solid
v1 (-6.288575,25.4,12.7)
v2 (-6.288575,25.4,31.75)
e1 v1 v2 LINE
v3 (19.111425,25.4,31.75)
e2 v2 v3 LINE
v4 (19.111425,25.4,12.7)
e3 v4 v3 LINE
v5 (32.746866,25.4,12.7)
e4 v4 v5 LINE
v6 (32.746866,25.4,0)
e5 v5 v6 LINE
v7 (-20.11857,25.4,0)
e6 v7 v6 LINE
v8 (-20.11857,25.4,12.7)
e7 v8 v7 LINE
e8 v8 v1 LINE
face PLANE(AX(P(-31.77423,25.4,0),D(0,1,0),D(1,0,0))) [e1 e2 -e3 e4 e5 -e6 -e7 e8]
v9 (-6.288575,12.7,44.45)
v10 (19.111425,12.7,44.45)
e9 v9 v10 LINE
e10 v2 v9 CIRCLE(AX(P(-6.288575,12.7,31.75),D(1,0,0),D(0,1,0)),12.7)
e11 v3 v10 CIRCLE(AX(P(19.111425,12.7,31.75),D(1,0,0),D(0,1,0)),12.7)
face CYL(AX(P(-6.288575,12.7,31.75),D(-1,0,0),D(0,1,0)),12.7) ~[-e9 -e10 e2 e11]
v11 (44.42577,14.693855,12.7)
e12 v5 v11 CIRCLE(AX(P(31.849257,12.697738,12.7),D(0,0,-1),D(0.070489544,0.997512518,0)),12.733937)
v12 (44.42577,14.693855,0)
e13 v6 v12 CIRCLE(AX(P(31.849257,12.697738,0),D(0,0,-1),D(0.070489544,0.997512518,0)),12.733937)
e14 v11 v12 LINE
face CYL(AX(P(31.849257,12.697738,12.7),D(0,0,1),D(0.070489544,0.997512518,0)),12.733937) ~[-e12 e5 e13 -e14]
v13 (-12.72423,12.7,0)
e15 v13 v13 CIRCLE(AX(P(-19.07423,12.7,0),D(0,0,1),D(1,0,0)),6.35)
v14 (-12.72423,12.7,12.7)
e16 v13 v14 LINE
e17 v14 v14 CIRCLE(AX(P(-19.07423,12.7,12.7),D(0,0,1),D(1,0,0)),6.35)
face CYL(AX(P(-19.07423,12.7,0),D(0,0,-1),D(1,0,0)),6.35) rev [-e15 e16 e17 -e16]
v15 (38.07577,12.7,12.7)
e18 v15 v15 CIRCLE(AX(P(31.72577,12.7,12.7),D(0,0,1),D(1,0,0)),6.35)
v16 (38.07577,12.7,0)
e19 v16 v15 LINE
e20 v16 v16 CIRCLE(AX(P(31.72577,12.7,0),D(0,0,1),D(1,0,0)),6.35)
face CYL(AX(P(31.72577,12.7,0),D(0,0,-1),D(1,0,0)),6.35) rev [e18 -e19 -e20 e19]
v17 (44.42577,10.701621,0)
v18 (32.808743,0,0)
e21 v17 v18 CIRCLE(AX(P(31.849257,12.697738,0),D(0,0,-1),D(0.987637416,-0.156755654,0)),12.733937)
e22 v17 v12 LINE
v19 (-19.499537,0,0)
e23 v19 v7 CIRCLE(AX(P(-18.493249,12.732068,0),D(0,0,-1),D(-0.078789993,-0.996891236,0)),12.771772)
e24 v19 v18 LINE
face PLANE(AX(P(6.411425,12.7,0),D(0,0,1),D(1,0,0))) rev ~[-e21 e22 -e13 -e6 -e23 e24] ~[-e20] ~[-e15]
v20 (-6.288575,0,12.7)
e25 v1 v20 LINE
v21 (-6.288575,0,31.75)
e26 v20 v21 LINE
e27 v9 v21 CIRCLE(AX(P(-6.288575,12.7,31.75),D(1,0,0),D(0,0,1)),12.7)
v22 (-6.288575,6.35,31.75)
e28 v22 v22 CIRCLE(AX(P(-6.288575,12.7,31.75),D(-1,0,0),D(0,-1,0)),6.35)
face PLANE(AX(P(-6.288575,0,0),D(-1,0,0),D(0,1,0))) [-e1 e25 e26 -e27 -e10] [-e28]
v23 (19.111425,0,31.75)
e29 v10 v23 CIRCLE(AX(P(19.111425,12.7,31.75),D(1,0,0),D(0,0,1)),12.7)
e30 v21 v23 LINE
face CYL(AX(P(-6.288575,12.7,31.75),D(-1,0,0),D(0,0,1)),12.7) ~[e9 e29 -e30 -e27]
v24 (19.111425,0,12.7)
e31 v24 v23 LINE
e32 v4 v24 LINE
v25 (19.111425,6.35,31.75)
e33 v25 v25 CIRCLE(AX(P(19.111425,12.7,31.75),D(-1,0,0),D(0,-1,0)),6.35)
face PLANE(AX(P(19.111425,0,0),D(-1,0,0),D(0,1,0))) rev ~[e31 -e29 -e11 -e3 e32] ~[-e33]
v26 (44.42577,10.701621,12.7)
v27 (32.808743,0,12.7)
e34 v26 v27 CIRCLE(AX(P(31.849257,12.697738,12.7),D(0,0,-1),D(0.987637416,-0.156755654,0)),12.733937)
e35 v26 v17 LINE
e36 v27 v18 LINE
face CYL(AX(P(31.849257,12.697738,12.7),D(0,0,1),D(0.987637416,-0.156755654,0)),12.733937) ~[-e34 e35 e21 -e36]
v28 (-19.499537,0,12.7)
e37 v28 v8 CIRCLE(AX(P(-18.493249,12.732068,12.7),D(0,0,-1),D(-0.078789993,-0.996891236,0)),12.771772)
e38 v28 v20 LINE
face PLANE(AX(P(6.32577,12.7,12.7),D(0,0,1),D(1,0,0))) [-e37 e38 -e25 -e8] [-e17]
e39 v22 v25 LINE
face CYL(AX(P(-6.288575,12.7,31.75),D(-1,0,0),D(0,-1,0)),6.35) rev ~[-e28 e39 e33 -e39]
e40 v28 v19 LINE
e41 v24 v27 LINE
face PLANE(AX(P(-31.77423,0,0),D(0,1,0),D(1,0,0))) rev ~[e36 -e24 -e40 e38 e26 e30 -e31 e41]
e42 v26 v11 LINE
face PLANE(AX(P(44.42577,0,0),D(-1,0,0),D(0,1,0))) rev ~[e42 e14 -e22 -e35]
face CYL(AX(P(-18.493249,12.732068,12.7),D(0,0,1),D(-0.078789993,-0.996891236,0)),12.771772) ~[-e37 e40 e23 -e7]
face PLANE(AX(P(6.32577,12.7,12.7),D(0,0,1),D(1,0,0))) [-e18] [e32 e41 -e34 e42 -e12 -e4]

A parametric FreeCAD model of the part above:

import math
import FreeCAD as App
import Part
import Sketcher

V = App.Vector
Q = App.Units.Quantity


def add_polygon(sketch, points):
    """Adds a closed chain of lines whose ends are joined by coincident constraints."""
    first, n = sketch.GeometryCount, len(points)
    for a, b in zip(points, points[1:] + points[:1]):
        sketch.addGeometry(Part.LineSegment(App.Vector(*a, 0), App.Vector(*b, 0)), False)
    for i in range(n):
        sketch.addConstraint(Sketcher.Constraint("Coincident", first + i, 2, first + (i + 1) % n, 1))

doc = App.newDocument("Part")
body = doc.addObject("PartDesign::Body", "Body")

# Sketch on XY plane
sketch1 = body.newObject("Sketcher::SketchObject", "Sketch")
sketch1.AttachmentSupport = (doc.getObject("XY_Plane"), [""])
sketch1.MapMode = "FlatFace"
add_polygon(sketch1, [(-32, 25), (-32, 0), (44, 0), (44, 25)])  # lines 0-3
sketch1.addGeometry(Part.Circle(V(-19, 13, 0), V(0, 0, 1), 6), False)  # 4
sketch1.addGeometry(Part.Circle(V(32, 13, 0), V(0, 0, 1), 6), False)  # 5
sketch1.addConstraint(Sketcher.Constraint("Vertical", 0))
sketch1.addConstraint(Sketcher.Constraint("Horizontal", 1))
sketch1.addConstraint(Sketcher.Constraint("Vertical", 2))
sketch1.addConstraint(Sketcher.Constraint("Horizontal", 3))
sketch1.addConstraint(Sketcher.Constraint("Equal", 4, 5))
sketch1.addConstraint(Sketcher.Constraint("PointOnObject", 0, 2, -1))
sketch1.addConstraint(Sketcher.Constraint("Horizontal", 4, 3, 5, 3))
sketch1.addConstraint(Sketcher.Constraint("Diameter", 4, Q("0.5 in")))
sketch1.addConstraint(Sketcher.Constraint("DistanceX", 1, 1, 1, 2, Q("3 in")))
sketch1.addConstraint(Sketcher.Constraint("DistanceY", 0, 2, 0, 1, Q("1 in")))
sketch1.addConstraint(Sketcher.Constraint("DistanceX", 4, 3, 5, 3, Q("2 in")))
sketch1.addConstraint(Sketcher.Constraint("DistanceY", -1, 1, 4, 3, Q("0.5 in")))
sketch1.addConstraint(Sketcher.Constraint("DistanceX", 0, 2, 4, 3, Q("0.5 in")))
sketch1.addConstraint(Sketcher.Constraint("DistanceX", 4, 3, -1, 1, 19.07423))
pad1 = body.newObject("PartDesign::Pad", "Pad")
pad1.Profile = sketch1
pad1.Length = Q("0.5 in")

# Sketch on XY plane
sketch2 = body.newObject("Sketcher::SketchObject", "Sketch001")
sketch2.AttachmentSupport = (doc.getObject("XY_Plane"), [""])
sketch2.MapMode = "FlatFace"
sketch2.AttachmentOffset = App.Placement(V(0, 0, 0.5 * 25.4), App.Rotation())
sketch2.addGeometry(Part.ArcOfCircle(Part.Circle(V(-18, 13, 0), V(0, 0, 1), 13), math.radians(97), math.radians(265)), False)
sketch2.addGeometry(Part.LineSegment(V(-20, 25, 0), V(-32, 25, 0)), False)
sketch2.addGeometry(Part.LineSegment(V(-32, 25, 0), V(-32, 0, 0)), False)
sketch2.addGeometry(Part.LineSegment(V(-32, 0, 0), V(-19, 0, 0)), False)
sketch2.addGeometry(Part.LineSegment(V(44, 25, 0), V(33, 25, 0)), False)
sketch2.addGeometry(Part.ArcOfCircle(Part.Circle(V(32, 13, 0), V(0, 0, 1), 13), math.radians(9), math.radians(86)), False)
sketch2.addGeometry(Part.LineSegment(V(44, 15, 0), V(44, 25, 0)), False)
sketch2.addGeometry(Part.ArcOfCircle(Part.Circle(V(32, 13, 0), V(0, 0, 1), 13), math.radians(-86), math.radians(-9)), False)
sketch2.addGeometry(Part.LineSegment(V(33, 0, 0), V(44, 0, 0)), False)
sketch2.addGeometry(Part.LineSegment(V(44, 0, 0), V(44, 11, 0)), False)
sketch2.addConstraint(Sketcher.Constraint("Coincident", 0, 1, 1, 1))
sketch2.addConstraint(Sketcher.Constraint("Coincident", 1, 2, 2, 1))
sketch2.addConstraint(Sketcher.Constraint("Coincident", 2, 2, 3, 1))
sketch2.addConstraint(Sketcher.Constraint("Coincident", 3, 2, 0, 2))
sketch2.addConstraint(Sketcher.Constraint("Coincident", 4, 2, 5, 2))
sketch2.addConstraint(Sketcher.Constraint("Coincident", 5, 1, 6, 1))
sketch2.addConstraint(Sketcher.Constraint("Coincident", 6, 2, 4, 1))
sketch2.addConstraint(Sketcher.Constraint("Coincident", 7, 1, 8, 1))
sketch2.addConstraint(Sketcher.Constraint("Coincident", 8, 2, 9, 1))
sketch2.addConstraint(Sketcher.Constraint("Coincident", 9, 2, 7, 2))
sketch2.addConstraint(Sketcher.Constraint("Horizontal", 1))
sketch2.addConstraint(Sketcher.Constraint("Vertical", 2))
sketch2.addConstraint(Sketcher.Constraint("Horizontal", 3))
sketch2.addConstraint(Sketcher.Constraint("Horizontal", 4))
sketch2.addConstraint(Sketcher.Constraint("Vertical", 6))
sketch2.addConstraint(Sketcher.Constraint("Horizontal", 8))
sketch2.addConstraint(Sketcher.Constraint("Vertical", 9))
sketch2.addConstraint(Sketcher.Constraint("Coincident", 7, 3, 5, 3))
sketch2.addConstraint(Sketcher.Constraint("Equal", 5, 7))
sketch2.addConstraint(Sketcher.Constraint("PointOnObject", 2, 2, -1))
sketch2.addConstraint(Sketcher.Constraint("PointOnObject", 7, 1, -1))
sketch2.addConstraint(Sketcher.Constraint("Horizontal", 1, 2, 4, 2))
sketch2.addConstraint(Sketcher.Constraint("Vertical", 6, 2, 8, 2))
sketch2.addConstraint(Sketcher.Constraint("DistanceY", 2, 2, 2, 1, Q("1 in")))
sketch2.addConstraint(Sketcher.Constraint("Radius", 0, 12.771772))
sketch2.addConstraint(Sketcher.Constraint("Radius", 5, 12.733937))
sketch2.addConstraint(Sketcher.Constraint("DistanceX", 1, 2, 1, 1, 11.65566))
sketch2.addConstraint(Sketcher.Constraint("DistanceY", 9, 1, 9, 2, 10.701621))
sketch2.addConstraint(Sketcher.Constraint("DistanceX", 3, 1, 3, 2, 12.274694))
sketch2.addConstraint(Sketcher.Constraint("DistanceX", 4, 2, 4, 1, 11.678904))
sketch2.addConstraint(Sketcher.Constraint("DistanceX", 0, 3, -1, 1, 18.493249))
sketch2.addConstraint(Sketcher.Constraint("DistanceX", -1, 1, 5, 1, 44.42577))
pocket1 = body.newObject("PartDesign::Pocket", "Pocket")
pocket1.Profile = sketch2
pocket1.Length = Q("0.5 in")

# Sketch on XY plane
sketch3 = body.newObject("Sketcher::SketchObject", "Sketch002")
sketch3.AttachmentSupport = (doc.getObject("XY_Plane"), [""])
sketch3.MapMode = "FlatFace"
add_polygon(sketch3, [(-6, 25), (-6, 0), (19, 0), (19, 25)])  # lines 0-3
sketch3.addConstraint(Sketcher.Constraint("Vertical", 0))
sketch3.addConstraint(Sketcher.Constraint("Horizontal", 1))
sketch3.addConstraint(Sketcher.Constraint("Vertical", 2))
sketch3.addConstraint(Sketcher.Constraint("Horizontal", 3))
sketch3.addConstraint(Sketcher.Constraint("PointOnObject", 0, 2, -1))
sketch3.addConstraint(Sketcher.Constraint("Equal", 3, 0))
sketch3.addConstraint(Sketcher.Constraint("DistanceX", 1, 1, 1, 2, Q("1 in")))
sketch3.addConstraint(Sketcher.Constraint("DistanceX", 0, 2, -1, 1, 6.288575))
pad2 = body.newObject("PartDesign::Pad", "Pad001")
pad2.Profile = sketch3
pad2.Length = Q("1.75 in")

# Sketch on YZ plane
sketch4 = body.newObject("Sketcher::SketchObject", "Sketch003")
sketch4.AttachmentSupport = (doc.getObject("YZ_Plane"), [""])
sketch4.MapMode = "FlatFace"
sketch4.AttachmentOffset = App.Placement(V(0, 0, -6.288575), App.Rotation())
sketch4.addGeometry(Part.ArcOfCircle(Part.Circle(V(13, 32, 0), V(0, 0, 1), 13), math.radians(0), math.radians(90)), False)
sketch4.addGeometry(Part.LineSegment(V(13, 44, 0), V(25, 44, 0)), False)
sketch4.addGeometry(Part.LineSegment(V(25, 44, 0), V(25, 32, 0)), False)
sketch4.addGeometry(Part.ArcOfCircle(Part.Circle(V(13, 32, 0), V(0, 0, 1), 13), math.radians(90), math.radians(180)), False)
sketch4.addGeometry(Part.LineSegment(V(0, 32, 0), V(0, 44, 0)), False)
sketch4.addGeometry(Part.LineSegment(V(0, 44, 0), V(13, 44, 0)), False)
sketch4.addConstraint(Sketcher.Constraint("Tangent", 0, 2, 1, 1))
sketch4.addConstraint(Sketcher.Constraint("Coincident", 1, 2, 2, 1))
sketch4.addConstraint(Sketcher.Constraint("Tangent", 2, 2, 0, 1))
sketch4.addConstraint(Sketcher.Constraint("Tangent", 3, 2, 4, 1))
sketch4.addConstraint(Sketcher.Constraint("Coincident", 4, 2, 5, 1))
sketch4.addConstraint(Sketcher.Constraint("Tangent", 5, 2, 3, 1))
sketch4.addConstraint(Sketcher.Constraint("Horizontal", 1))
sketch4.addConstraint(Sketcher.Constraint("Vertical", 2))
sketch4.addConstraint(Sketcher.Constraint("Vertical", 4))
sketch4.addConstraint(Sketcher.Constraint("Horizontal", 5))
sketch4.addConstraint(Sketcher.Constraint("Coincident", 3, 3, 0, 3))
sketch4.addConstraint(Sketcher.Constraint("Equal", 0, 3))
sketch4.addConstraint(Sketcher.Constraint("PointOnObject", 3, 2, -2))
sketch4.addConstraint(Sketcher.Constraint("Radius", 0, Q("0.5 in")))
sketch4.addConstraint(Sketcher.Constraint("DistanceY", -1, 1, 0, 3, Q("1.25 in")))
pocket2 = body.newObject("PartDesign::Pocket", "Pocket001")
pocket2.Profile = sketch4
pocket2.Length = Q("1 in")
pocket2.Reversed = True

# Sketch on YZ plane
sketch5 = body.newObject("Sketcher::SketchObject", "Sketch004")
sketch5.AttachmentSupport = (doc.getObject("YZ_Plane"), [""])
sketch5.MapMode = "FlatFace"
sketch5.AttachmentOffset = App.Placement(V(0, 0, -6.288575), App.Rotation())
sketch5.addGeometry(Part.Circle(V(13, 32, 0), V(0, 0, 1), 6), False)
sketch5.addConstraint(Sketcher.Constraint("Diameter", 0, Q("0.5 in")))
sketch5.addConstraint(Sketcher.Constraint("DistanceX", -1, 1, 0, 3, Q("0.5 in")))
sketch5.addConstraint(Sketcher.Constraint("DistanceY", -1, 1, 0, 3, Q("1.25 in")))
pocket3 = body.newObject("PartDesign::Pocket", "Pocket002")
pocket3.Profile = sketch5
pocket3.Length = Q("1 in")
pocket3.Reversed = True

doc.recompute()
